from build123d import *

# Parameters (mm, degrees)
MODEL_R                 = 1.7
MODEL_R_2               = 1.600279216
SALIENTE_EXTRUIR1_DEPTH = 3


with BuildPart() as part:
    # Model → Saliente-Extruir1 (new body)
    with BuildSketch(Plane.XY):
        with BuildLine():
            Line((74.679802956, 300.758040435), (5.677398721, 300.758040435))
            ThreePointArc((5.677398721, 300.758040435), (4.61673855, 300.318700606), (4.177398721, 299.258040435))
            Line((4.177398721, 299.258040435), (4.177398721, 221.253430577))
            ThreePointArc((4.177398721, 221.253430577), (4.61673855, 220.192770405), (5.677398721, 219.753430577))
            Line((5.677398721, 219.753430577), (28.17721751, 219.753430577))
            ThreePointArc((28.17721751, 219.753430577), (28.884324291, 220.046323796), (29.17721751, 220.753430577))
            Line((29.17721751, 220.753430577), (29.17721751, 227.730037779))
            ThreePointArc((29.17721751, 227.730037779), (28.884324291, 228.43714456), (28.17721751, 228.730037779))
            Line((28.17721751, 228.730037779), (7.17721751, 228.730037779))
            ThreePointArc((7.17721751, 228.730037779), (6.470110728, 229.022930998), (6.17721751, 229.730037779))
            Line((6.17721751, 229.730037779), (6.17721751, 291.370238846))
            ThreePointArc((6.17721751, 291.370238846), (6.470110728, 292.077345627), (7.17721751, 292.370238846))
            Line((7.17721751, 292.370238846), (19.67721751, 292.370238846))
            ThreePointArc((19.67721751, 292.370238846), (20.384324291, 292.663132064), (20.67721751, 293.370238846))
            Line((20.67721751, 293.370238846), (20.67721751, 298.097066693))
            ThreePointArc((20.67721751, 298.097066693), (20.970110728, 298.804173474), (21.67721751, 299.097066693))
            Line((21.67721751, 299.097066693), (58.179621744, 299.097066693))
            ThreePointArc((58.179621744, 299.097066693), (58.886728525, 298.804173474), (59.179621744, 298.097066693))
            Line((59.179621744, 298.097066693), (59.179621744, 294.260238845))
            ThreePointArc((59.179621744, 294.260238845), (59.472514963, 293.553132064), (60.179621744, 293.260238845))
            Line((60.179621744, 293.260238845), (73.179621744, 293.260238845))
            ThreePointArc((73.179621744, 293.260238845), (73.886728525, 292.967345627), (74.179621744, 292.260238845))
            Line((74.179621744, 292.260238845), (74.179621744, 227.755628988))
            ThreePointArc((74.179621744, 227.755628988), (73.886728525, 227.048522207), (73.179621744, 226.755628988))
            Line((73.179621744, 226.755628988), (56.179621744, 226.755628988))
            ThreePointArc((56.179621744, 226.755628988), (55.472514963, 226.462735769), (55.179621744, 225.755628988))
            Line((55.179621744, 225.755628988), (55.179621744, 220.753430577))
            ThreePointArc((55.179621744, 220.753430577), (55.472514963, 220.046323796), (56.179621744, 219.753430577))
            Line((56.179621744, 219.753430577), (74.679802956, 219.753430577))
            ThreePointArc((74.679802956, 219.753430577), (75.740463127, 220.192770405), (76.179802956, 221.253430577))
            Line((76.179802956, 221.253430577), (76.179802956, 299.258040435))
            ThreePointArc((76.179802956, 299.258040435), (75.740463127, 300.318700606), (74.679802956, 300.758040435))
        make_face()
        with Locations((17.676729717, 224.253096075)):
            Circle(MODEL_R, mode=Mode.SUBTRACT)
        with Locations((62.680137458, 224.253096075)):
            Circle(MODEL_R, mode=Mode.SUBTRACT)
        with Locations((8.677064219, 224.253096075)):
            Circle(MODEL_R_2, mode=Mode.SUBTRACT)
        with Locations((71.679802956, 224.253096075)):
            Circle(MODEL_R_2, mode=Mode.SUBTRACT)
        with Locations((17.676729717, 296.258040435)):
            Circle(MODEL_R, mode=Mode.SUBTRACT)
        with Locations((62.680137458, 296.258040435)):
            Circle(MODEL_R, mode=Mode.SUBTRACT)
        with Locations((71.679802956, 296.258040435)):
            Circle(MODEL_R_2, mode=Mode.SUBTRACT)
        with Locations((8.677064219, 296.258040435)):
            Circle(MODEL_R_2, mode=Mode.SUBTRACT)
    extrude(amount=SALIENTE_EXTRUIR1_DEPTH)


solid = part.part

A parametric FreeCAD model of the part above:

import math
import FreeCAD as App
import Part
import Sketcher

V = App.Vector
Q = App.Units.Quantity

doc = App.newDocument("Part")
params = doc.addObject("Spreadsheet::Sheet", "Params")
for row, (alias, value) in enumerate([
    ("sketch1_radius", "1 mm"),
    ("sketch1_diameter", "3.4 mm"),
    ("sketch1_radius2", "1.5 mm"),
    ("sketch1_width", "21 mm"),
    ("sketch1_width2", "13 mm"),
    ("pad1_length", "3 mm"),
], start=1):
    params.set(f"A{row}", alias)
    params.set(f"B{row}", "=" + value)
    params.setAlias(f"B{row}", alias)

body = doc.addObject("PartDesign::Body", "Body")

sketch1 = body.newObject("Sketcher::SketchObject", "Sketch")
sketch1.AttachmentSupport = (doc.getObject("XY_Plane"), [""])
sketch1.MapMode = "FlatFace"
sketch1.addGeometry([
    Part.LineSegment(V(74.7, 300.8, 0), V(5.7, 300.8, 0)),
    Part.ArcOfCircle(Part.Circle(V(5.7, 299.3, 0), V(0, 0, 1), 1.5), math.radians(90), math.radians(180)),
    Part.LineSegment(V(4.2, 299.3, 0), V(4.2, 221.3, 0)),
    Part.ArcOfCircle(Part.Circle(V(5.7, 221.3, 0), V(0, 0, 1), 1.5), math.radians(-180), math.radians(-90)),
    Part.LineSegment(V(5.7, 219.8, 0), V(28.2, 219.8, 0)),
    Part.ArcOfCircle(Part.Circle(V(28.2, 220.8, 0), V(0, 0, 1), 1), math.radians(-90), math.radians(0)),
    Part.LineSegment(V(29.2, 220.8, 0), V(29.2, 227.7, 0)),
    Part.ArcOfCircle(Part.Circle(V(28.2, 227.7, 0), V(0, 0, 1), 1), math.radians(0), math.radians(90)),
    Part.LineSegment(V(28.2, 228.7, 0), V(7.2, 228.7, 0)),
    Part.ArcOfCircle(Part.Circle(V(7.2, 229.7, 0), V(0, 0, 1), 1), math.radians(180), math.radians(270)),
    Part.LineSegment(V(6.2, 229.7, 0), V(6.2, 291.4, 0)),
    Part.ArcOfCircle(Part.Circle(V(7.2, 291.4, 0), V(0, 0, 1), 1), math.radians(90), math.radians(180)),
    Part.LineSegment(V(7.2, 292.4, 0), V(19.7, 292.4, 0)),
    Part.ArcOfCircle(Part.Circle(V(19.7, 293.4, 0), V(0, 0, 1), 1), math.radians(-90), math.radians(0)),
    Part.LineSegment(V(20.7, 293.4, 0), V(20.7, 298.1, 0)),
    Part.ArcOfCircle(Part.Circle(V(21.7, 298.1, 0), V(0, 0, 1), 1), math.radians(90), math.radians(180)),
    Part.LineSegment(V(21.7, 299.1, 0), V(58.2, 299.1, 0)),
    Part.ArcOfCircle(Part.Circle(V(58.2, 298.1, 0), V(0, 0, 1), 1), math.radians(0), math.radians(90)),
    Part.LineSegment(V(59.2, 298.1, 0), V(59.2, 294.3, 0)),
    Part.ArcOfCircle(Part.Circle(V(60.2, 294.3, 0), V(0, 0, 1), 1), math.radians(-180), math.radians(-90)),
    Part.LineSegment(V(60.2, 293.3, 0), V(73.2, 293.3, 0)),
    Part.ArcOfCircle(Part.Circle(V(73.2, 292.3, 0), V(0, 0, 1), 1), math.radians(0), math.radians(90)),
    Part.LineSegment(V(74.2, 292.3, 0), V(74.2, 227.8, 0)),
    Part.ArcOfCircle(Part.Circle(V(73.2, 227.8, 0), V(0, 0, 1), 1), math.radians(-90), math.radians(0)),
    Part.LineSegment(V(73.2, 226.8, 0), V(56.2, 226.8, 0)),
    Part.ArcOfCircle(Part.Circle(V(56.2, 225.8, 0), V(0, 0, 1), 1), math.radians(90), math.radians(180)),
    Part.LineSegment(V(55.2, 225.8, 0), V(55.2, 220.8, 0)),
    Part.ArcOfCircle(Part.Circle(V(56.2, 220.8, 0), V(0, 0, 1), 1), math.radians(-180), math.radians(-90)),
    Part.LineSegment(V(56.2, 219.8, 0), V(74.7, 219.8, 0)),
    Part.ArcOfCircle(Part.Circle(V(74.7, 221.3, 0), V(0, 0, 1), 1.5), math.radians(-90), math.radians(0)),
    Part.LineSegment(V(76.2, 221.3, 0), V(76.2, 299.3, 0)),
    Part.ArcOfCircle(Part.Circle(V(74.7, 299.3, 0), V(0, 0, 1), 1.5), math.radians(0), math.radians(90)),
    Part.Circle(V(8.7, 224.3, 0), V(0, 0, 1), 1.6),
    Part.Circle(V(17.7, 224.3, 0), V(0, 0, 1), 1.7),
    Part.Circle(V(62.7, 224.3, 0), V(0, 0, 1), 1.7),
    Part.Circle(V(71.7, 224.3, 0), V(0, 0, 1), 1.6),
    Part.Circle(V(8.7, 296.3, 0), V(0, 0, 1), 1.6),
    Part.Circle(V(17.7, 296.3, 0), V(0, 0, 1), 1.7),
    Part.Circle(V(62.7, 296.3, 0), V(0, 0, 1), 1.7),
    Part.Circle(V(71.7, 296.3, 0), V(0, 0, 1), 1.6),
], False)
sketch1.addConstraint([
    Sketcher.Constraint("Tangent", 0, 2, 1, 1),
    Sketcher.Constraint("Tangent", 1, 2, 2, 1),
    Sketcher.Constraint("Tangent", 2, 2, 3, 1),
    Sketcher.Constraint("Tangent", 3, 2, 4, 1),
    Sketcher.Constraint("Tangent", 4, 2, 5, 1),
    Sketcher.Constraint("Tangent", 5, 2, 6, 1),
    Sketcher.Constraint("Tangent", 6, 2, 7, 1),
    Sketcher.Constraint("Tangent", 7, 2, 8, 1),
    Sketcher.Constraint("Tangent", 8, 2, 9, 2),
    Sketcher.Constraint("Tangent", 9, 1, 10, 1),
    Sketcher.Constraint("Tangent", 10, 2, 11, 2),
    Sketcher.Constraint("Tangent", 11, 1, 12, 1),
    Sketcher.Constraint("Tangent", 12, 2, 13, 1),
    Sketcher.Constraint("Tangent", 13, 2, 14, 1),
    Sketcher.Constraint("Tangent", 14, 2, 15, 2),
    Sketcher.Constraint("Tangent", 15, 1, 16, 1),
    Sketcher.Constraint("Tangent", 16, 2, 17, 2),
    Sketcher.Constraint("Tangent", 17, 1, 18, 1),
    Sketcher.Constraint("Tangent", 18, 2, 19, 1),
    Sketcher.Constraint("Tangent", 19, 2, 20, 1),
    Sketcher.Constraint("Tangent", 20, 2, 21, 2),
    Sketcher.Constraint("Tangent", 21, 1, 22, 1),
    Sketcher.Constraint("Tangent", 22, 2, 23, 2),
    Sketcher.Constraint("Tangent", 23, 1, 24, 1),
    Sketcher.Constraint("Tangent", 24, 2, 25, 1),
    Sketcher.Constraint("Tangent", 25, 2, 26, 1),
    Sketcher.Constraint("Tangent", 26, 2, 27, 1),
    Sketcher.Constraint("Tangent", 27, 2, 28, 1),
    Sketcher.Constraint("Tangent", 28, 2, 29, 1),
    Sketcher.Constraint("Tangent", 29, 2, 30, 1),
    Sketcher.Constraint("Tangent", 30, 2, 31, 1),
    Sketcher.Constraint("Tangent", 31, 2, 0, 1),
    Sketcher.Constraint("Horizontal", 0),
    Sketcher.Constraint("Vertical", 2),
    Sketcher.Constraint("Horizontal", 4),
    Sketcher.Constraint("Vertical", 6),
    Sketcher.Constraint("Horizontal", 8),
    Sketcher.Constraint("Vertical", 10),
    Sketcher.Constraint("Horizontal", 12),
    Sketcher.Constraint("Vertical", 14),
    Sketcher.Constraint("Horizontal", 16),
    Sketcher.Constraint("Vertical", 18),
    Sketcher.Constraint("Horizontal", 20),
    Sketcher.Constraint("Vertical", 22),
    Sketcher.Constraint("Horizontal", 24),
    Sketcher.Constraint("Vertical", 26),
    Sketcher.Constraint("Horizontal", 28),
    Sketcher.Constraint("Vertical", 30),
    Sketcher.Constraint("Equal", 1, 3),
    Sketcher.Constraint("Equal", 5, 7),
    Sketcher.Constraint("Equal", 7, 9),
    Sketcher.Constraint("Equal", 9, 11),
    Sketcher.Constraint("Equal", 11, 13),
    Sketcher.Constraint("Equal", 13, 15),
    Sketcher.Constraint("Equal", 15, 17),
    Sketcher.Constraint("Equal", 17, 19),
    Sketcher.Constraint("Equal", 19, 21),
    Sketcher.Constraint("Equal", 21, 23),
    Sketcher.Constraint("Equal", 23, 25),
    Sketcher.Constraint("Equal", 25, 27),
    Sketcher.Constraint("Equal", 3, 29),
    Sketcher.Constraint("Equal", 29, 31),
    Sketcher.Constraint("Equal", 33, 34),
    Sketcher.Constraint("Equal", 32, 35),
    Sketcher.Constraint("Equal", 35, 36),
    Sketcher.Constraint("Equal", 34, 37),
    Sketcher.Constraint("Equal", 37, 38),
    Sketcher.Constraint("Equal", 36, 39),
    Sketcher.Constraint("Horizontal", 5, 3, 27, 3),
    Sketcher.Constraint("Horizontal", 32, 3, 33, 3),
    Sketcher.Constraint("Horizontal", 33, 3, 34, 3),
    Sketcher.Constraint("Horizontal", 34, 3, 35, 3),
    Sketcher.Constraint("Horizontal", 36, 3, 37, 3),
    Sketcher.Constraint("Horizontal", 37, 3, 38, 3),
    Sketcher.Constraint("Horizontal", 38, 3, 39, 3),
    Sketcher.Constraint("Vertical", 32, 3, 36, 3),
    Sketcher.Constraint("Vertical", 33, 3, 37, 3),
    Sketcher.Constraint("Vertical", 34, 3, 38, 3),
    Sketcher.Constraint("Vertical", 35, 3, 39, 3),
    Sketcher.Constraint("Radius", 5, Q("1 mm")),
    Sketcher.Constraint("Diameter", 33, Q("3.4 mm")),
    Sketcher.Constraint("Radius", 1, Q("1.5 mm")),
    Sketcher.Constraint("DistanceX", 8, 2, 8, 1, Q("21 mm")),
    Sketcher.Constraint("DistanceX", 20, 1, 20, 2, Q("13 mm")),
    Sketcher.Constraint("DistanceX", 24, 2, 24, 1, Q("17 mm")),
    Sketcher.Constraint("DistanceX", 12, 1, 12, 2, Q("12.5 mm")),
    Sketcher.Constraint("DistanceX", 35, 3, 29, 3, Q("3 mm")),
    Sketcher.Constraint("DistanceY", 36, 3, 1, 3, Q("3 mm")),
    Sketcher.Constraint("Diameter", 32, Q("3.200558 mm")),
    Sketcher.Constraint("DistanceY", 13, 3, 19, 3, Q("0.89 mm")),
    Sketcher.Constraint("DistanceY", 10, 1, 10, 2, Q("61.640201 mm")),
    Sketcher.Constraint("DistanceY", 26, 2, 26, 1, Q("5.002198 mm")),
    Sketcher.Constraint("DistanceX", 4, 1, 4, 2, Q("22.499819 mm")),
    Sketcher.Constraint("DistanceX", 28, 1, 28, 2, Q("18.500181 mm")),
    Sketcher.Constraint("DistanceY", 2, 2, 2, 1, Q("78.00461 mm")),
    Sketcher.Constraint("DistanceY", 22, 2, 22, 1, Q("64.50461 mm")),
    Sketcher.Constraint("DistanceX", -1, 1, 1, 3, Q("5.677399 mm")),
    Sketcher.Constraint("DistanceX", 0, 2, 0, 1, Q("69.002404 mm")),
    Sketcher.Constraint("DistanceY", 14, 1, 14, 2, Q("4.726828 mm")),
    Sketcher.Constraint("DistanceY", -1, 1, 1, 3, Q("299.25804 mm")),
    Sketcher.Constraint("DistanceX", -1, 1, 33, 3, Q("17.67673 mm")),
    Sketcher.Constraint("DistanceY", 32, 3, 9, 3, Q("5.476942 mm")),
    Sketcher.Constraint("DistanceX", 7, 3, 34, 3, Q("34.50292 mm")),
    Sketcher.Constraint("DistanceX", -1, 1, 32, 3, Q("8.677064 mm")),
])
sketch1.setExpression("Constraints[79]", "Params.sketch1_radius")
sketch1.setExpression("Constraints[80]", "Params.sketch1_diameter")
sketch1.setExpression("Constraints[81]", "Params.sketch1_radius2")
sketch1.setExpression("Constraints[82]", "Params.sketch1_width")
sketch1.setExpression("Constraints[83]", "Params.sketch1_width2")
pad1 = body.newObject("PartDesign::Pad", "Pad")
pad1.Profile = sketch1
pad1.setExpression("Length", "Params.pad1_length")

doc.recompute()
